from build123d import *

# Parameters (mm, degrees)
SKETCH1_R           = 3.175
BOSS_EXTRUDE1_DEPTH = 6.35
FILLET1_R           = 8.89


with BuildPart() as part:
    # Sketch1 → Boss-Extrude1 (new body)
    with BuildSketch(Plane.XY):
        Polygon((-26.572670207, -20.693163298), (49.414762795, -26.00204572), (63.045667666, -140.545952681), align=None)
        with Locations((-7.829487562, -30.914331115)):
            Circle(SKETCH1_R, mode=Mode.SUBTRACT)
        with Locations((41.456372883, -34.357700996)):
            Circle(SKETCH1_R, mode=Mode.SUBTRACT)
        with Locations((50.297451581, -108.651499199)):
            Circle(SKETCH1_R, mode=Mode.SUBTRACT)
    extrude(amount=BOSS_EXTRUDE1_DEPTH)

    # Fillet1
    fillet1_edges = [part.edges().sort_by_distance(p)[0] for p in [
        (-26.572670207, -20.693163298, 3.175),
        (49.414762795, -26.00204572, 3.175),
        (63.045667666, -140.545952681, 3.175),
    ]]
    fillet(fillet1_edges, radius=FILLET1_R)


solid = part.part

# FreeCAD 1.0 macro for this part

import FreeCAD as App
import Part
import Sketcher
from FreeCAD import Vector
Q = App.Units.Quantity


def edges_at(feature, points):
    """Names of the edges that pass closest to the given points."""
    edges = feature.Shape.Edges
    near = lambda p: min(range(len(edges)), key=lambda i: edges[i].distToShape(Part.Vertex(*p))[0])
    return sorted({f"Edge{near(p) + 1}" for p in points})

doc = App.newDocument("Part")
body = doc.addObject("PartDesign::Body", "Body")

sketch1 = body.newObject("Sketcher::SketchObject", "Sketch")
sketch1.AttachmentSupport = (doc.getObject("XY_Plane"), [""])
sketch1.MapMode = "FlatFace"
sketch1.addGeometry([
    Part.LineSegment(Vector(49.4, -26, 0), Vector(-26.6, -20.7, 0)),
    Part.LineSegment(Vector(-26.6, -20.7, 0), Vector(63, -140.5, 0)),
    Part.LineSegment(Vector(63, -140.5, 0), Vector(49.4, -26, 0)),
    Part.Circle(Vector(50.3, -108.7, 0), Vector(0, 0, 1), 3.2),
    Part.Circle(Vector(41.5, -34.4, 0), Vector(0, 0, 1), 3.2),
    Part.Circle(Vector(-7.8, -30.9, 0), Vector(0, 0, 1), 3.2),
], False)
sketch1.addConstraint([
    Sketcher.Constraint("Coincident", 0, 2, 1, 1),
    Sketcher.Constraint("Coincident", 1, 2, 2, 1),
    Sketcher.Constraint("Coincident", 2, 2, 0, 1),
    Sketcher.Constraint("Equal", 3, 4),
    Sketcher.Constraint("Equal", 4, 5),
    Sketcher.Constraint("Diameter", 3, Q("0.25 in")),
    Sketcher.Constraint("DistanceY", 3, 3, -1, 1, 108.651499),
    Sketcher.Constraint("DistanceY", 4, 3, -1, 1, 34.357701),
    Sketcher.Constraint("Distance", 0, 76.17266),
    Sketcher.Constraint("Distance", 1, 149.653392),
    Sketcher.Constraint("DistanceX", -1, 1, 3, 3, 50.297452),
    Sketcher.Constraint("DistanceY", 5, 3, -1, 1, 30.914331),
    Sketcher.Constraint("DistanceX", 0, 2, -1, 1, 26.57267),
    Sketcher.Constraint("DistanceX", 4, 3, 3, 3, 8.841079),
    Sketcher.Constraint("DistanceX", 5, 3, 4, 3, 49.28586),
    Sketcher.Constraint("DistanceY", 1, 2, 4, 3, 106.188252),
    Sketcher.Constraint("DistanceY", 1, 2, 0, 2, 119.852789),
    Sketcher.Constraint("DistanceX", 4, 3, 2, 2, 7.95839),
])
pad1 = body.newObject("PartDesign::Pad", "Pad")
pad1.Profile = sketch1
pad1.Length = Q("0.25 in")
doc.recompute()

fillet = body.newObject("PartDesign::Fillet", "Fillet")
fillet.Base = (pad1, edges_at(pad1, [(-26.573, -20.693, 3.175), (49.415, -26.002, 3.175), (63.046, -140.546, 3.175)]))
fillet.Radius = Q("0.35 in")

doc.recompute()
